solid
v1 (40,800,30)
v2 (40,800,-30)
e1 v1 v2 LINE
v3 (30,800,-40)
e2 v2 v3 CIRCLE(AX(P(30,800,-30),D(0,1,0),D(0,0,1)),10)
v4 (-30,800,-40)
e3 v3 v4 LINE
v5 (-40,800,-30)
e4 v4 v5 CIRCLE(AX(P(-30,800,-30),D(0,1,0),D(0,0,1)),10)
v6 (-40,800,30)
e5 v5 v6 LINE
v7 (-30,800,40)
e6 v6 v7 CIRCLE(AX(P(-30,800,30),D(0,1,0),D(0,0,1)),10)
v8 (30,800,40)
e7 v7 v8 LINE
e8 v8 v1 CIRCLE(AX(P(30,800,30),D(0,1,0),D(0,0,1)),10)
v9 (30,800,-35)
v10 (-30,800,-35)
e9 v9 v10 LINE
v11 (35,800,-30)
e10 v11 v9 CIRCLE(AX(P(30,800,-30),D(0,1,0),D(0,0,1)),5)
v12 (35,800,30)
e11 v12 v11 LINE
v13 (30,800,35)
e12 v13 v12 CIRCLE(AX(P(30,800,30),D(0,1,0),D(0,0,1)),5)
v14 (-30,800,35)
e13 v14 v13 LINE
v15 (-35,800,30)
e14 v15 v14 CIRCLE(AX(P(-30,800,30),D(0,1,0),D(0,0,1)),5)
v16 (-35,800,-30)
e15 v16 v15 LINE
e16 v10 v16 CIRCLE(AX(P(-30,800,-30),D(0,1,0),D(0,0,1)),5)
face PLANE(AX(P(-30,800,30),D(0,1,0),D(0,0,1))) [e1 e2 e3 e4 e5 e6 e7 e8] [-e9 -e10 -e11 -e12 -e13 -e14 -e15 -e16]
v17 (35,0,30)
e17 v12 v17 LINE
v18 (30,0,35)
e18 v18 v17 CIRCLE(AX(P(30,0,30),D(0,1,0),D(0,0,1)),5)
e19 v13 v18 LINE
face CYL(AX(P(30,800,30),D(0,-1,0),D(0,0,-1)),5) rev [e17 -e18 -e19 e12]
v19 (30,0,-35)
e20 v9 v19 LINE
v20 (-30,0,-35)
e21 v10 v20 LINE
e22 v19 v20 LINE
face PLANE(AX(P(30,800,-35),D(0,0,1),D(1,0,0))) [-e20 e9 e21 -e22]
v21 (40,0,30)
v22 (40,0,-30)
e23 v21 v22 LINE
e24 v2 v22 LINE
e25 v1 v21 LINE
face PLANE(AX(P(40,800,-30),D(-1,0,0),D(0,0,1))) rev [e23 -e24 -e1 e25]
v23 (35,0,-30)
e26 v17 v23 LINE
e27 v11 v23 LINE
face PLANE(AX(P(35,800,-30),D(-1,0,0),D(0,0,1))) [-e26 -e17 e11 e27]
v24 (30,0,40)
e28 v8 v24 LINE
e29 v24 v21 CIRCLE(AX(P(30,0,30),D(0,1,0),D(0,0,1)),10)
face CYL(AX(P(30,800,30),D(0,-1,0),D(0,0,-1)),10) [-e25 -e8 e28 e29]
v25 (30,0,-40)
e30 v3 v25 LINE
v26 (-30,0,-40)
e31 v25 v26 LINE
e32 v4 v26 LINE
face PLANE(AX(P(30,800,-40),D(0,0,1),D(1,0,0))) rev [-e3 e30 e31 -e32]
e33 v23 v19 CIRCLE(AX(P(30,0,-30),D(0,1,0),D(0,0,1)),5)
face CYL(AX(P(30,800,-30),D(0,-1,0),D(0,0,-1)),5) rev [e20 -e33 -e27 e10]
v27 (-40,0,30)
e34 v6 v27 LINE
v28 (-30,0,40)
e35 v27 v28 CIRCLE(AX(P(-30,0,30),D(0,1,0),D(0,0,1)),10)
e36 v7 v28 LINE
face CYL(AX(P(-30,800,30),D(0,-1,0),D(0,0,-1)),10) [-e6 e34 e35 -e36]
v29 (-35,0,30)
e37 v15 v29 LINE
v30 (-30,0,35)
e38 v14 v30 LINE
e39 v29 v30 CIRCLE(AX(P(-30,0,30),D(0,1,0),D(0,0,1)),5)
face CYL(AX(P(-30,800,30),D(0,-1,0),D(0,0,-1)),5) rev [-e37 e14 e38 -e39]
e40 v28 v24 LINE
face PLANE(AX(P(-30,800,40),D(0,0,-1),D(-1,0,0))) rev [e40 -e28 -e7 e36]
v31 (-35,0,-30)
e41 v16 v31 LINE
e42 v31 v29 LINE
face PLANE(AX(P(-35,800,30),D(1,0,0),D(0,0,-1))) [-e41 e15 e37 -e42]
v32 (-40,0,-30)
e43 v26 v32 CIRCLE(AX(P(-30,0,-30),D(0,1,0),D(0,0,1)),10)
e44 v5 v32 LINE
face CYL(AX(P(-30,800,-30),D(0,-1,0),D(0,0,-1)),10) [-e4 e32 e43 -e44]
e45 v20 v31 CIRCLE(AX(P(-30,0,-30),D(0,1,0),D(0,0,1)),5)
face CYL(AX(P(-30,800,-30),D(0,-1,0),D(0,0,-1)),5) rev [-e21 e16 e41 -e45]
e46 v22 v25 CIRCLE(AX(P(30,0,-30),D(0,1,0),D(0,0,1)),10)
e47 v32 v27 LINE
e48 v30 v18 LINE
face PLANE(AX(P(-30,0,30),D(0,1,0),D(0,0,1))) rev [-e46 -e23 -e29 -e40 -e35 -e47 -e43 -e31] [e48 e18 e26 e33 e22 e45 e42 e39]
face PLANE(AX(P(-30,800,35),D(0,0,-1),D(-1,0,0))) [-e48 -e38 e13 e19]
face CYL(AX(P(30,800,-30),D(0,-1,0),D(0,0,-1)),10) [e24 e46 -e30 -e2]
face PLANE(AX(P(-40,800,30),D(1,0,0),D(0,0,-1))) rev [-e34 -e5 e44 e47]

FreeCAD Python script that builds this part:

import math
import FreeCAD as App
import Part
import Sketcher

V = App.Vector
Q = App.Units.Quantity

doc = App.newDocument("Part")
body = doc.addObject("PartDesign::Body", "Body")

# Sketch on XZ plane
sketch1 = body.newObject("Sketcher::SketchObject", "Sketch")
sketch1.AttachmentSupport = (doc.getObject("XZ_Plane"), [""])
sketch1.MapMode = "FlatFace"
sketch1.addGeometry([
    Part.LineSegment(V(30, -40, 0), V(-30, -40, 0)),  # 0
    Part.ArcOfCircle(Part.Circle(V(-30, -30, 0), V(0, 0, 1), 10), math.radians(180), math.radians(270)),  # 1
    Part.LineSegment(V(-40, -30, 0), V(-40, 30, 0)),  # 2
    Part.ArcOfCircle(Part.Circle(V(-30, 30, 0), V(0, 0, 1), 10), math.radians(90), math.radians(180)),  # 3
    Part.LineSegment(V(-30, 40, 0), V(30, 40, 0)),  # 4
    Part.ArcOfCircle(Part.Circle(V(30, 30, 0), V(0, 0, 1), 10), math.radians(0), math.radians(90)),  # 5
    Part.LineSegment(V(40, 30, 0), V(40, -30, 0)),  # 6
    Part.ArcOfCircle(Part.Circle(V(30, -30, 0), V(0, 0, 1), 10), math.radians(-90), math.radians(0)),  # 7
    Part.LineSegment(V(-30, -35, 0), V(30, -35, 0)),  # 8
    Part.ArcOfCircle(Part.Circle(V(30, -30, 0), V(0, 0, 1), 5), math.radians(-90), math.radians(0)),  # 9
    Part.LineSegment(V(35, -30, 0), V(35, 30, 0)),  # 10
    Part.ArcOfCircle(Part.Circle(V(30, 30, 0), V(0, 0, 1), 5), math.radians(0), math.radians(90)),  # 11
    Part.LineSegment(V(30, 35, 0), V(-30, 35, 0)),  # 12
    Part.ArcOfCircle(Part.Circle(V(-30, 30, 0), V(0, 0, 1), 5), math.radians(90), math.radians(180)),  # 13
    Part.LineSegment(V(-35, 30, 0), V(-35, -30, 0)),  # 14
    Part.ArcOfCircle(Part.Circle(V(-30, -30, 0), V(0, 0, 1), 5), math.radians(180), math.radians(270)),  # 15
], False)
sketch1.addConstraint([
    Sketcher.Constraint("Tangent", 0, 2, 1, 2),
    Sketcher.Constraint("Tangent", 1, 1, 2, 1),
    Sketcher.Constraint("Tangent", 2, 2, 3, 2),
    Sketcher.Constraint("Tangent", 3, 1, 4, 1),
    Sketcher.Constraint("Tangent", 4, 2, 5, 2),
    Sketcher.Constraint("Tangent", 5, 1, 6, 1),
    Sketcher.Constraint("Tangent", 6, 2, 7, 2),
    Sketcher.Constraint("Tangent", 7, 1, 0, 1),
    Sketcher.Constraint("Tangent", 8, 2, 9, 1),
    Sketcher.Constraint("Tangent", 9, 2, 10, 1),
    Sketcher.Constraint("Tangent", 10, 2, 11, 1),
    Sketcher.Constraint("Tangent", 11, 2, 12, 1),
    Sketcher.Constraint("Tangent", 12, 2, 13, 1),
    Sketcher.Constraint("Tangent", 13, 2, 14, 1),
    Sketcher.Constraint("Tangent", 14, 2, 15, 1),
    Sketcher.Constraint("Tangent", 15, 2, 8, 1),
    Sketcher.Constraint("Horizontal", 0),
    Sketcher.Constraint("Vertical", 2),
    Sketcher.Constraint("Horizontal", 4),
    Sketcher.Constraint("Vertical", 6),
    Sketcher.Constraint("Horizontal", 8),
    Sketcher.Constraint("Vertical", 10),
    Sketcher.Constraint("Horizontal", 12),
    Sketcher.Constraint("Vertical", 14),
    Sketcher.Constraint("Coincident", 9, 3, 7, 3),
    Sketcher.Constraint("Coincident", 11, 3, 5, 3),
    Sketcher.Constraint("Coincident", 13, 3, 3, 3),
    Sketcher.Constraint("Equal", 1, 3),
    Sketcher.Constraint("Equal", 3, 5),
    Sketcher.Constraint("Equal", 5, 7),
    Sketcher.Constraint("Equal", 13, 15),
    Sketcher.Constraint("Symmetric", 1, 3, 5, 3, -1, 1),
    Sketcher.Constraint("Equal", 12, 2),
    Sketcher.Constraint("Radius", 1, Q("10 mm")),
    Sketcher.Constraint("Radius", 9, Q("5 mm")),
    Sketcher.Constraint("DistanceX", 0, 2, 0, 1, Q("60 mm")),
])
pad1 = body.newObject("PartDesign::Pad", "Pad")
pad1.Profile = sketch1
pad1.Length = 800
pad1.Reversed = True

doc.recompute()
